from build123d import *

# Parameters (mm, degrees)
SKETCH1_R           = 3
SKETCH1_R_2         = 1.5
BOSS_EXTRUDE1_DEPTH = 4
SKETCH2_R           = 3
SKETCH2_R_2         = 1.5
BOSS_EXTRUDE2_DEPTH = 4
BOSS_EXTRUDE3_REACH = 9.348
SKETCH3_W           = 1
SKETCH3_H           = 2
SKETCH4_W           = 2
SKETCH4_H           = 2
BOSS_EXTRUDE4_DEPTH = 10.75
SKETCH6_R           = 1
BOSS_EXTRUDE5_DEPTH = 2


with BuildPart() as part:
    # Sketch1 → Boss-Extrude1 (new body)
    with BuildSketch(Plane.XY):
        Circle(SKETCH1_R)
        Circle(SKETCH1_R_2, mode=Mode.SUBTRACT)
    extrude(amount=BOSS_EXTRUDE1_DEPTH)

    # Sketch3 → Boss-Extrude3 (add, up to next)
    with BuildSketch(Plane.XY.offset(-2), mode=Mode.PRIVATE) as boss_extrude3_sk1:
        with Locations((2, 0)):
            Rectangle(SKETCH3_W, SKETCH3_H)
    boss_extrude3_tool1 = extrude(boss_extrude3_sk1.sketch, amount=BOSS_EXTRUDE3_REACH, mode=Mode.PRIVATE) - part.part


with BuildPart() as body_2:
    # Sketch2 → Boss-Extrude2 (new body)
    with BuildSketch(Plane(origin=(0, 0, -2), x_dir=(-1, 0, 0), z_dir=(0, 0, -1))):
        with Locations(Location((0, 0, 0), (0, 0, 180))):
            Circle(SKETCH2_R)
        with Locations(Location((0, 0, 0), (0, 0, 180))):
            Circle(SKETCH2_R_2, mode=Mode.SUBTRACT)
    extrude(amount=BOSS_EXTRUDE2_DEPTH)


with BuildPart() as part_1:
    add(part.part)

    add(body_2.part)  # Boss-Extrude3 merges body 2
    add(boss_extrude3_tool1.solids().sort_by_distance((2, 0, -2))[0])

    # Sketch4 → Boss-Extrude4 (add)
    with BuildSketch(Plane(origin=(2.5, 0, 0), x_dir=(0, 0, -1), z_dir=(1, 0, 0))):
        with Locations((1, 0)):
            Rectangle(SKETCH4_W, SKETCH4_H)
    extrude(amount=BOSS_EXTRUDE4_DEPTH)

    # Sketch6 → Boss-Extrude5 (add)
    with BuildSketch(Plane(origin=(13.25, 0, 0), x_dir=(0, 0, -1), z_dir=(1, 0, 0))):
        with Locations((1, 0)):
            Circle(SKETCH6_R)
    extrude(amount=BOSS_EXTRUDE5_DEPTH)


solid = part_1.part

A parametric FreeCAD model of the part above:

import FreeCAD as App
import Part
import Sketcher

doc = App.newDocument("Part")
body = doc.addObject("PartDesign::Body", "Body")

# Sketch on XY plane
sketch1 = body.newObject("Sketcher::SketchObject", "Sketch")
sketch1.AttachmentSupport = (doc.getObject("XY_Plane"), [""])
sketch1.MapMode = "FlatFace"
sketch1.addGeometry(Part.Circle(App.Vector(0, 0, 0), App.Vector(0, 0, 1), 3), False)
sketch1.addGeometry(Part.Circle(App.Vector(0, 0, 0), App.Vector(0, 0, 1), 1.5), False)
sketch1.addConstraint(Sketcher.Constraint("Coincident", 0, 3, -1, 1))
sketch1.addConstraint(Sketcher.Constraint("Coincident", 1, 3, -1, 1))
sketch1.addConstraint(Sketcher.Constraint("Diameter", 0, 6.0))
sketch1.addConstraint(Sketcher.Constraint("Diameter", 1, 3.0))
pad1 = body.newObject("PartDesign::Pad", "Pad")
pad1.Profile = sketch1
pad1.Length = 4
body2 = doc.addObject("PartDesign::Body", "Body001")

# Sketch on XY plane
sketch2 = body2.newObject("Sketcher::SketchObject", "Sketch001")
sketch2.AttachmentSupport = (doc.getObject("XY_Plane001"), [""])
sketch2.MapMode = "FlatFace"
sketch2.AttachmentOffset = App.Placement(App.Vector(0, 0, -2), App.Rotation())
sketch2.addGeometry(Part.Circle(App.Vector(0, 0, 0), App.Vector(0, 0, 1), 3), False)
sketch2.addGeometry(Part.Circle(App.Vector(0, 0, 0), App.Vector(0, 0, 1), 1.5), False)
sketch2.addConstraint(Sketcher.Constraint("Coincident", 0, 3, -1, 1))
sketch2.addConstraint(Sketcher.Constraint("Coincident", 1, 3, -1, 1))
sketch2.addConstraint(Sketcher.Constraint("Diameter", 0, 6.0))
sketch2.addConstraint(Sketcher.Constraint("Diameter", 1, 3.0))
pad2 = body2.newObject("PartDesign::Pad", "Pad001")
pad2.Profile = sketch2
pad2.Length = 4
pad2.Reversed = True
body.AllowCompound = True
doc.recompute()

boolean = body.newObject("PartDesign::Boolean", "Boolean")
boolean.Type = "Fuse"
boolean.addObjects([body2])

# Sketch on XY plane
sketch3 = body.newObject("Sketcher::SketchObject", "Sketch002")
sketch3.AttachmentSupport = (doc.getObject("XY_Plane"), [""])
sketch3.MapMode = "FlatFace"
sketch3.AttachmentOffset = App.Placement(App.Vector(0, 0, -2), App.Rotation())
sketch3.addGeometry(Part.LineSegment(App.Vector(1.5, 1, 0), App.Vector(1.5, -1, 0)), False)
sketch3.addGeometry(Part.LineSegment(App.Vector(1.5, -1, 0), App.Vector(2.5, -1, 0)), False)
sketch3.addGeometry(Part.LineSegment(App.Vector(2.5, -1, 0), App.Vector(2.5, 1, 0)), False)
sketch3.addGeometry(Part.LineSegment(App.Vector(2.5, 1, 0), App.Vector(1.5, 1, 0)), False)
sketch3.addConstraint(Sketcher.Constraint("Coincident", 0, 2, 1, 1))
sketch3.addConstraint(Sketcher.Constraint("Coincident", 1, 2, 2, 1))
sketch3.addConstraint(Sketcher.Constraint("Coincident", 2, 2, 3, 1))
sketch3.addConstraint(Sketcher.Constraint("Coincident", 3, 2, 0, 1))
sketch3.addConstraint(Sketcher.Constraint("Vertical", 0))
sketch3.addConstraint(Sketcher.Constraint("Horizontal", 1))
sketch3.addConstraint(Sketcher.Constraint("Vertical", 2))
sketch3.addConstraint(Sketcher.Constraint("Horizontal", 3))
sketch3.addConstraint(Sketcher.Constraint("DistanceX", 1, 1, 1, 2, 1.0))
sketch3.addConstraint(Sketcher.Constraint("DistanceY", 0, 2, 0, 1, 2.0))
sketch3.addConstraint(Sketcher.Constraint("DistanceY", 0, 2, -1, 1, 1.0))
sketch3.addConstraint(Sketcher.Constraint("DistanceX", -1, 1, 0, 2, 1.5))
pad3 = body.newObject("PartDesign::Pad", "Pad002")
pad3.Profile = sketch3
pad3.Type = "UpToFirst"

# Sketch on YZ plane
sketch4 = body.newObject("Sketcher::SketchObject", "Sketch003")
sketch4.AttachmentSupport = (doc.getObject("YZ_Plane"), [""])
sketch4.MapMode = "FlatFace"
sketch4.AttachmentOffset = App.Placement(App.Vector(0, 0, 2.5), App.Rotation())
sketch4.addGeometry(Part.LineSegment(App.Vector(1, 0, 0), App.Vector(-1, 0, 0)), False)
sketch4.addGeometry(Part.LineSegment(App.Vector(-1, 0, 0), App.Vector(-1, -2, 0)), False)
sketch4.addGeometry(Part.LineSegment(App.Vector(-1, -2, 0), App.Vector(1, -2, 0)), False)
sketch4.addGeometry(Part.LineSegment(App.Vector(1, -2, 0), App.Vector(1, 0, 0)), False)
sketch4.addConstraint(Sketcher.Constraint("Coincident", 0, 2, 1, 1))
sketch4.addConstraint(Sketcher.Constraint("Coincident", 1, 2, 2, 1))
sketch4.addConstraint(Sketcher.Constraint("Coincident", 2, 2, 3, 1))
sketch4.addConstraint(Sketcher.Constraint("Coincident", 3, 2, 0, 1))
sketch4.addConstraint(Sketcher.Constraint("Horizontal", 0))
sketch4.addConstraint(Sketcher.Constraint("Vertical", 1))
sketch4.addConstraint(Sketcher.Constraint("Horizontal", 2))
sketch4.addConstraint(Sketcher.Constraint("Vertical", 3))
sketch4.addConstraint(Sketcher.Constraint("Symmetric", 0, 2, 3, 2, -1, 1))
sketch4.addConstraint(Sketcher.Constraint("Equal", 2, 1))
sketch4.addConstraint(Sketcher.Constraint("DistanceX", 0, 2, 0, 1, 2.0))
pad4 = body.newObject("PartDesign::Pad", "Pad003")
pad4.Profile = sketch4
pad4.Length = 10.75

# Sketch on YZ plane
sketch5 = body.newObject("Sketcher::SketchObject", "Sketch004")
sketch5.AttachmentSupport = (doc.getObject("YZ_Plane"), [""])
sketch5.MapMode = "FlatFace"
sketch5.AttachmentOffset = App.Placement(App.Vector(0, 0, 13.25), App.Rotation())
sketch5.addGeometry(Part.Circle(App.Vector(0, -1, 0), App.Vector(0, 0, 1), 1), False)
sketch5.addConstraint(Sketcher.Constraint("PointOnObject", 0, 3, -2))
sketch5.addConstraint(Sketcher.Constraint("Diameter", 0, 2.0))
sketch5.addConstraint(Sketcher.Constraint("DistanceY", 0, 3, -1, 1, 1.0))
pad5 = body.newObject("PartDesign::Pad", "Pad004")
pad5.Profile = sketch5
pad5.Length = 2

doc.recompute()
